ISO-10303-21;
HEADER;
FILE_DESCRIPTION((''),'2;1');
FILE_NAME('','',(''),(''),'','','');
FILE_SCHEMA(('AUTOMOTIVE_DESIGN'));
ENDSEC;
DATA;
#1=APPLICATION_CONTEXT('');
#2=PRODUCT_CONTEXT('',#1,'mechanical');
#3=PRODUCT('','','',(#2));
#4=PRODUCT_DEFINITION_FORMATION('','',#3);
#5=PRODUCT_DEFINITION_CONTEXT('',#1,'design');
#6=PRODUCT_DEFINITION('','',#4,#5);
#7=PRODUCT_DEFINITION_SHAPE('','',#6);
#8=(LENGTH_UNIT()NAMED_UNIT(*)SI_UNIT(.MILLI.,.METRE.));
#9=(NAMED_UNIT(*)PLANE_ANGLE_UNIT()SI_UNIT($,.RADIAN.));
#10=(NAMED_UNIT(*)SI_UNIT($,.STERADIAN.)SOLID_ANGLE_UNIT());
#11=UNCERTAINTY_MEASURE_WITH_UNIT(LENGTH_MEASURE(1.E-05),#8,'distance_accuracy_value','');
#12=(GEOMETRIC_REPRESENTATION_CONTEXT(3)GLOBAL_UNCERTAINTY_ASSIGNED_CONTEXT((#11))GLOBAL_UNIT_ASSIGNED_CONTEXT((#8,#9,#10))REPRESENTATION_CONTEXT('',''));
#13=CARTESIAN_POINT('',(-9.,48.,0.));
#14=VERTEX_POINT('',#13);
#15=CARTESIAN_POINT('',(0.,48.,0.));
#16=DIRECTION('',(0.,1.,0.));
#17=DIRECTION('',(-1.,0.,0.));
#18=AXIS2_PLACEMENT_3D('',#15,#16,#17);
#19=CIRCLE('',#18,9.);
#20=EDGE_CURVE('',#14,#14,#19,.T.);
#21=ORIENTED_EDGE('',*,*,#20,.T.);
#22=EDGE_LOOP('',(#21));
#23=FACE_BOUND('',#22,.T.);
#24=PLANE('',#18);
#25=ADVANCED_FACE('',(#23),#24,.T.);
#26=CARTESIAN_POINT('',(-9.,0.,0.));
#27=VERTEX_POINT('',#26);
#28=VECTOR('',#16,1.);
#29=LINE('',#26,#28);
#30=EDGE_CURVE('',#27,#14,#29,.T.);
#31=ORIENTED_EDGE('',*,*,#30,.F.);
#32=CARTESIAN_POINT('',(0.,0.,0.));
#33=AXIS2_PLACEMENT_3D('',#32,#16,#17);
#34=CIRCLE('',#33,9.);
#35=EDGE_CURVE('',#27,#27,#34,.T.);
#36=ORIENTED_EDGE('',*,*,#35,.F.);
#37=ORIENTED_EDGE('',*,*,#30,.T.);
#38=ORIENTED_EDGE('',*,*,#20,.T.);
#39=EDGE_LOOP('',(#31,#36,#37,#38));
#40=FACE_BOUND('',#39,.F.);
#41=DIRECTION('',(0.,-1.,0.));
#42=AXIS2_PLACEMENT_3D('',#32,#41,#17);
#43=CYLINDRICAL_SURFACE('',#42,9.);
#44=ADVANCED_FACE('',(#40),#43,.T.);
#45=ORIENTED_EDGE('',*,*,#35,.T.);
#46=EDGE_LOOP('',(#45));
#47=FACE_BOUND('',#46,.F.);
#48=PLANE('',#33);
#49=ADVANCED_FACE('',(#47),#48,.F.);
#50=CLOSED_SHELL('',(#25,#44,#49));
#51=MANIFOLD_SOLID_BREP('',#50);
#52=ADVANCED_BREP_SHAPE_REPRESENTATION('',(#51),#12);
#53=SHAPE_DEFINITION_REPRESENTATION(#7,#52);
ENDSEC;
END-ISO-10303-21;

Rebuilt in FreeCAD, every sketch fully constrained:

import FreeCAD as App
import Part
import Sketcher
from FreeCAD import Vector

doc = App.newDocument("Part")
body = doc.addObject("PartDesign::Body", "Body")

# Sketch on XZ plane
sketch1 = doc.addObject("Sketcher::SketchObject", "Sketch")
body.addObject(sketch1)
sketch1.AttachmentSupport = (doc.XZ_Plane, [""])
sketch1.MapMode = "FlatFace"
sketch1.addGeometry(Part.Circle(Vector(0, 0, 0), Vector(0, 0, 1), 9), False)
sketch1.addConstraint([
    Sketcher.Constraint("Coincident", 0, 3, -1, 1),
    Sketcher.Constraint("Diameter", 0, 18.0),
])
pad1 = doc.addObject("PartDesign::Pad", "Pad")
body.addObject(pad1)
pad1.Profile = sketch1
pad1.Length = 48
pad1.Reversed = True

doc.recompute()
